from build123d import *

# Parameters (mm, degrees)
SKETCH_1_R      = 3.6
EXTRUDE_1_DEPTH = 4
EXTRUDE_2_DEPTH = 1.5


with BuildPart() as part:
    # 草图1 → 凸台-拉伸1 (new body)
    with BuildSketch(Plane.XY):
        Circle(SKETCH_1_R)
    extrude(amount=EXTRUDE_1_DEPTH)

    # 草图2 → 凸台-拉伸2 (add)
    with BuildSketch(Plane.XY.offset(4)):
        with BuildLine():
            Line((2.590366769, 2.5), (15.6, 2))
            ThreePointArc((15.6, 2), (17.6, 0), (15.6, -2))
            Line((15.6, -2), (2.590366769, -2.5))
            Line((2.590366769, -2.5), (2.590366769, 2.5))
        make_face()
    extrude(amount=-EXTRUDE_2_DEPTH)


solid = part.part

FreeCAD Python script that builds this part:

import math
import FreeCAD as App
import Part
import Sketcher
from FreeCAD import Vector
Q = App.Units.Quantity

doc = App.newDocument("Part")
body = doc.addObject("PartDesign::Body", "Body")

sketch1 = body.newObject("Sketcher::SketchObject", "Sketch")
sketch1.AttachmentSupport = (doc.getObject("XY_Plane"), [""])
sketch1.MapMode = "FlatFace"
sketch1.addGeometry(Part.Circle(Vector(0, 0, 0), Vector(0, 0, 1), 3.6), False)
sketch1.addConstraint([
    Sketcher.Constraint("Coincident", 0, 3, -1, 1),
    Sketcher.Constraint("Diameter", 0, Q("7.2 mm")),
])
pad1 = body.newObject("PartDesign::Pad", "Pad")
pad1.Profile = sketch1
pad1.Length = 4

sketch2 = body.newObject("Sketcher::SketchObject", "Sketch001")
sketch2.AttachmentSupport = (doc.getObject("XY_Plane"), [""])
sketch2.MapMode = "FlatFace"
sketch2.AttachmentOffset = App.Placement(Vector(0, 0, 4), App.Rotation())
sketch2.addGeometry([
    Part.LineSegment(Vector(15.6, 2, 0), Vector(2.6, 2.5, 0)),
    Part.LineSegment(Vector(2.6, 2.5, 0), Vector(2.6, -2.5, 0)),
    Part.LineSegment(Vector(2.6, -2.5, 0), Vector(15.6, -2, 0)),
    Part.ArcOfCircle(Part.Circle(Vector(15.6, 0, 0), Vector(0, 0, 1), 2), math.radians(-90), math.radians(90)),
], False)
sketch2.addConstraint([
    Sketcher.Constraint("Coincident", 0, 2, 1, 1),
    Sketcher.Constraint("Coincident", 1, 2, 2, 1),
    Sketcher.Constraint("Coincident", 2, 2, 3, 1),
    Sketcher.Constraint("Coincident", 3, 2, 0, 1),
    Sketcher.Constraint("Vertical", 1),
    Sketcher.Constraint("Symmetric", 2, 2, 3, 2, -1),
    Sketcher.Constraint("Vertical", 3, 3, 2, 2),
    Sketcher.Constraint("Equal", 0, 2),
    Sketcher.Constraint("Radius", 3, Q("2 mm")),
    Sketcher.Constraint("DistanceY", 1, 2, 1, 1, Q("5 mm")),
    Sketcher.Constraint("DistanceX", -1, 1, 3, 3, Q("15.6 mm")),
    Sketcher.Constraint("Distance", 0, Q("13.019238 mm")),
])
pad2 = body.newObject("PartDesign::Pad", "Pad001")
pad2.Profile = sketch2
pad2.Length = 1.5
pad2.Reversed = True

doc.recompute()
